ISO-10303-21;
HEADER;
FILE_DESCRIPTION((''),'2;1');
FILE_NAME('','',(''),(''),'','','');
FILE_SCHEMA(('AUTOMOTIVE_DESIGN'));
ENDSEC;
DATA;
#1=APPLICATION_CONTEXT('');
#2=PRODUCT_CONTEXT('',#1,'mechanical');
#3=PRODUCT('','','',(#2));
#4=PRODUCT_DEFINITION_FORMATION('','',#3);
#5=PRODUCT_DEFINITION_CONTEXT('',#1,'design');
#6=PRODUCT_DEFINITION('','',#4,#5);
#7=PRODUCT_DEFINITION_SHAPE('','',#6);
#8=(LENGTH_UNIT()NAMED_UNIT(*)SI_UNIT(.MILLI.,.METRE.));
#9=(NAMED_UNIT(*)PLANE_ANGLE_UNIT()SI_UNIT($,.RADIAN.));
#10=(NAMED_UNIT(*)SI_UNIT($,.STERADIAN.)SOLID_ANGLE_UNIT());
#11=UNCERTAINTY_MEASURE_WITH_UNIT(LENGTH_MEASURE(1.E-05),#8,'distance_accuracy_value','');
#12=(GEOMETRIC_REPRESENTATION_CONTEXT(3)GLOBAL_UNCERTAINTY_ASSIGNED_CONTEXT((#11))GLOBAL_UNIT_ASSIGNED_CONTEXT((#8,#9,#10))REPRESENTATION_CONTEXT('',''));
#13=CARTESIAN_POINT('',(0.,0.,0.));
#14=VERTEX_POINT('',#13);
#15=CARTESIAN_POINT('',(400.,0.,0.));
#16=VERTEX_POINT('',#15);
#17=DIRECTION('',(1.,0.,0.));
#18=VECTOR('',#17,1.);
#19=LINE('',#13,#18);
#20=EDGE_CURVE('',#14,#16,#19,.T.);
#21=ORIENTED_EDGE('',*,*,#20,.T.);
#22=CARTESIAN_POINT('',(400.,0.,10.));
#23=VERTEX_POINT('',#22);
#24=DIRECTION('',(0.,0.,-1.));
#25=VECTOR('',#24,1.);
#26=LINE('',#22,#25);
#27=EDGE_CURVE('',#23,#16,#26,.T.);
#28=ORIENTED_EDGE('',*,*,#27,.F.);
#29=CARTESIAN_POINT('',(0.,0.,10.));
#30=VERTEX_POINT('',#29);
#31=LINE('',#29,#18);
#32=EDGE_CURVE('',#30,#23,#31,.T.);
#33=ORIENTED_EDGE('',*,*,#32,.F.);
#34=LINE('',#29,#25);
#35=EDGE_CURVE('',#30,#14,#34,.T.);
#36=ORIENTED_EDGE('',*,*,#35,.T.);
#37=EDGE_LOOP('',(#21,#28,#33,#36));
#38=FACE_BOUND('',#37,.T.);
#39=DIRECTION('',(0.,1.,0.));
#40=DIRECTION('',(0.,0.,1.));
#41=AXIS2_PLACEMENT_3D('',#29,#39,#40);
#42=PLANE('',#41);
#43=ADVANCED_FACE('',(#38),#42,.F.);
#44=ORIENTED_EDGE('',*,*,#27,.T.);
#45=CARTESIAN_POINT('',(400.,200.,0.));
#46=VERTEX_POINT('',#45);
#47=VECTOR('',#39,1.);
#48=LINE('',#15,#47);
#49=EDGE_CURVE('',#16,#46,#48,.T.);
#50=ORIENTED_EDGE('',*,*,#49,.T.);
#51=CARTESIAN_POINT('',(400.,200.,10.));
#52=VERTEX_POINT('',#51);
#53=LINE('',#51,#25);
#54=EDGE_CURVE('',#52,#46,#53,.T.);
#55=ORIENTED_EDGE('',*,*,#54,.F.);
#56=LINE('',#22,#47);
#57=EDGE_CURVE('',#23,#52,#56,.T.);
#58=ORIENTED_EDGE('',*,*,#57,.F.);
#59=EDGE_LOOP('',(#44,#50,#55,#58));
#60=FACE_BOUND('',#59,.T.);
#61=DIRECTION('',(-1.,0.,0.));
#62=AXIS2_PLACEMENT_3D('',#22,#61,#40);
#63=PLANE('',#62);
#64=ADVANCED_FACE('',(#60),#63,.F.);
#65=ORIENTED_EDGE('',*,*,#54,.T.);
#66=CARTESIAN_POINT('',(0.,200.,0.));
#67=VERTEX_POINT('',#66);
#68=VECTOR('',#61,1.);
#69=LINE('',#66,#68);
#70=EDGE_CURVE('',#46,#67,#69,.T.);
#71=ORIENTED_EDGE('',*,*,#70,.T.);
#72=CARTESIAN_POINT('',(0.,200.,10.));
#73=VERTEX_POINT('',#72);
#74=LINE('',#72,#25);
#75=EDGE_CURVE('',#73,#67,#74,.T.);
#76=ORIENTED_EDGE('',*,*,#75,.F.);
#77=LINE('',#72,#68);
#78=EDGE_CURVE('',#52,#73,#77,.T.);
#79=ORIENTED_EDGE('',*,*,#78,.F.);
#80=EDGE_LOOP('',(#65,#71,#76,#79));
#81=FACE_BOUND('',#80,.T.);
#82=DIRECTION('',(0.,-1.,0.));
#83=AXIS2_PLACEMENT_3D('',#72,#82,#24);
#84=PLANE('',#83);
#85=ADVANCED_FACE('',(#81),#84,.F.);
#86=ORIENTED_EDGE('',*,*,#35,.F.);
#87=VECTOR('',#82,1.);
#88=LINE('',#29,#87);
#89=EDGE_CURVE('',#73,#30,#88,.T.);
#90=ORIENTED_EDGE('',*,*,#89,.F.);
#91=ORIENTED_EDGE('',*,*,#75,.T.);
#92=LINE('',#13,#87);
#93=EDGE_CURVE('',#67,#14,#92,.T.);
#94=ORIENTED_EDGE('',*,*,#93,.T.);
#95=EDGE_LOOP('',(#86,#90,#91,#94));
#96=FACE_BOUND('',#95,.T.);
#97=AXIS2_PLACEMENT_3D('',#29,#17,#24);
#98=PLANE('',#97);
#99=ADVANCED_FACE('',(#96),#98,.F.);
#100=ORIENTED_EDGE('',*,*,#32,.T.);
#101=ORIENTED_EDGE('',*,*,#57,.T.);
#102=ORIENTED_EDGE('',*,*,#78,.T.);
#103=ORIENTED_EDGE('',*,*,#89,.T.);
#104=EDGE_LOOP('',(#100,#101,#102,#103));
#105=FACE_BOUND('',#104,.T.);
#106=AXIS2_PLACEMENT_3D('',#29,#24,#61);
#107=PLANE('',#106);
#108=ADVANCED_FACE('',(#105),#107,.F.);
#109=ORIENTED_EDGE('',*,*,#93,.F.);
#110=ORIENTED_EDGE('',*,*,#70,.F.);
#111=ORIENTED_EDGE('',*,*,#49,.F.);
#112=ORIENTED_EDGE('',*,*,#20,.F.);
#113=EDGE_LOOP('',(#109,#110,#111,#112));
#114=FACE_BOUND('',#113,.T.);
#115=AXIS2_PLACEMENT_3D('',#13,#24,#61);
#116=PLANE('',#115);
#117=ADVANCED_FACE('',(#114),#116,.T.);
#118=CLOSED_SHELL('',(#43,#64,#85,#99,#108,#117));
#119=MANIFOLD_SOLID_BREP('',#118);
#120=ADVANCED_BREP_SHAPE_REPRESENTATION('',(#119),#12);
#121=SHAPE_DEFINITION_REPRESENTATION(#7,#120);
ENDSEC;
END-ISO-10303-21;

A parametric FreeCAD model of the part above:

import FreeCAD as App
import Part
import Sketcher
Q = App.Units.Quantity


def add_polygon(sketch, points):
    """Adds a closed chain of lines whose ends are joined by coincident constraints."""
    first, n = sketch.GeometryCount, len(points)
    for a, b in zip(points, points[1:] + points[:1]):
        sketch.addGeometry(Part.LineSegment(App.Vector(*a, 0), App.Vector(*b, 0)), False)
    for i in range(n):
        sketch.addConstraint(Sketcher.Constraint("Coincident", first + i, 2, first + (i + 1) % n, 1))

doc = App.newDocument("Part")
params = doc.addObject("Spreadsheet::Sheet", "Params")
for row, (alias, value) in enumerate([
    ("sketch1_width", "400 mm"),
    ("sketch1_height", "200 mm"),
    ("pad1_length", "10 mm"),
], start=1):
    params.set(f"A{row}", alias)
    params.set(f"B{row}", "=" + value)
    params.setAlias(f"B{row}", alias)

body = doc.addObject("PartDesign::Body", "Body")

# Sketch on XY plane
sketch1 = doc.addObject("Sketcher::SketchObject", "Sketch")
body.addObject(sketch1)
sketch1.AttachmentSupport = (doc.XY_Plane, [""])
sketch1.MapMode = "FlatFace"
add_polygon(sketch1, [(0, 200), (0, 0), (400, 0), (400, 200)])  # lines 0-3
sketch1.addConstraint(Sketcher.Constraint("Vertical", 0))
sketch1.addConstraint(Sketcher.Constraint("Horizontal", 1))
sketch1.addConstraint(Sketcher.Constraint("Vertical", 2))
sketch1.addConstraint(Sketcher.Constraint("Horizontal", 3))
sketch1.addConstraint(Sketcher.Constraint("Coincident", 0, 2, -1, 1))
sketch1.addConstraint(Sketcher.Constraint("DistanceX", 1, 1, 1, 2, Q("400 mm")))
sketch1.addConstraint(Sketcher.Constraint("DistanceY", 0, 2, 0, 1, Q("200 mm")))
sketch1.setExpression("Constraints[9]", "Params.sketch1_width")
sketch1.setExpression("Constraints[10]", "Params.sketch1_height")
pad1 = doc.addObject("PartDesign::Pad", "Pad")
body.addObject(pad1)
pad1.Profile = sketch1
pad1.setExpression("Length", "Params.pad1_length")

doc.recompute()
